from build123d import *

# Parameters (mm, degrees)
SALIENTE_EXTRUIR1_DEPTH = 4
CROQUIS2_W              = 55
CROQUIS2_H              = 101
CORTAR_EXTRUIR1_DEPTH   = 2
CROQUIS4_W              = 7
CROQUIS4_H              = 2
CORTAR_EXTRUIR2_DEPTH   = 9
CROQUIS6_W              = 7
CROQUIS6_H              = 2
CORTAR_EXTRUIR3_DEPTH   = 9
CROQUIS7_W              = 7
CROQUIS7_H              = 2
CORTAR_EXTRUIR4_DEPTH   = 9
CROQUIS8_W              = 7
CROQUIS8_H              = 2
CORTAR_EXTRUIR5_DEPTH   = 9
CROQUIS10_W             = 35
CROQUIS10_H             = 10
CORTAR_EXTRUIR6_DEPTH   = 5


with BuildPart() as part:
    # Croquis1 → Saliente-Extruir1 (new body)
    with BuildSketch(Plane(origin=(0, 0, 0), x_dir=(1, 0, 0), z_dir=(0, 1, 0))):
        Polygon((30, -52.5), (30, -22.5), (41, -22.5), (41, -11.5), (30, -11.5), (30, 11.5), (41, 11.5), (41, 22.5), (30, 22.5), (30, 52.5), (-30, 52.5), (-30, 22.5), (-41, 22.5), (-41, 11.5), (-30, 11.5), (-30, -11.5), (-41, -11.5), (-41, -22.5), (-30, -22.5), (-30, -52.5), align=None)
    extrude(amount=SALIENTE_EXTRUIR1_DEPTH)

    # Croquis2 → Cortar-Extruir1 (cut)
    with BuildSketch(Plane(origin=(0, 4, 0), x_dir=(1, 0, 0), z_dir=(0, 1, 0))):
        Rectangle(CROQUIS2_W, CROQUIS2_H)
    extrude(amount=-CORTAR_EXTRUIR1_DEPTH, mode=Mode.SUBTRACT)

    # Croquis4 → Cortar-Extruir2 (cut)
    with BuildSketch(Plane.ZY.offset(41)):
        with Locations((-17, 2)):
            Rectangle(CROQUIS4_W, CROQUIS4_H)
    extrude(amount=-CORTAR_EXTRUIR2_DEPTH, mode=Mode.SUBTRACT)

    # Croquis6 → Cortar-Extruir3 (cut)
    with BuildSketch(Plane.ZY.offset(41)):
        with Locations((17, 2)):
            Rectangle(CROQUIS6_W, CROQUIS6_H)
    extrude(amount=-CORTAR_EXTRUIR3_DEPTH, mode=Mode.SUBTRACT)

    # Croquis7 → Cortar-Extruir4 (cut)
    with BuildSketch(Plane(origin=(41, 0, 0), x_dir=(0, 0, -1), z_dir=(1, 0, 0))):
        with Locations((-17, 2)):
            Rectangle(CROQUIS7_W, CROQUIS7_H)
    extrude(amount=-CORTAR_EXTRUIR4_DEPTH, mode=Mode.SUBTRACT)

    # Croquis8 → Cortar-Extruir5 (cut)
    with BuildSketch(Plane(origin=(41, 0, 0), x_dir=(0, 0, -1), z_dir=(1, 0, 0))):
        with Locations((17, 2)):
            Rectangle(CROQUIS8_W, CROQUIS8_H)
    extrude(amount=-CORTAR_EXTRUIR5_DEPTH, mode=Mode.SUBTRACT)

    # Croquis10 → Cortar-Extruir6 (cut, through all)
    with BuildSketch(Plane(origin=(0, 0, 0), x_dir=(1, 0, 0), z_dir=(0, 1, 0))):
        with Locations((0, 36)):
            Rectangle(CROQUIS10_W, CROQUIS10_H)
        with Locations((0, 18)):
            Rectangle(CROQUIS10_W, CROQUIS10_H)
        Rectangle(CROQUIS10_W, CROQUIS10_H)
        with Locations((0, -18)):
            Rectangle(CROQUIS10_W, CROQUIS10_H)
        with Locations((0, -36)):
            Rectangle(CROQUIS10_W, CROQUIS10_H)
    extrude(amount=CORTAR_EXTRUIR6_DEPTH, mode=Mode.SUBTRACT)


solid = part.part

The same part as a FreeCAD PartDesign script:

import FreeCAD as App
import Part
import Sketcher
from FreeCAD import Vector


def add_polygon(sketch, points):
    """Adds a closed chain of lines whose ends are joined by coincident constraints."""
    first, n = sketch.GeometryCount, len(points)
    for a, b in zip(points, points[1:] + points[:1]):
        sketch.addGeometry(Part.LineSegment(App.Vector(*a, 0), App.Vector(*b, 0)), False)
    for i in range(n):
        sketch.addConstraint(Sketcher.Constraint("Coincident", first + i, 2, first + (i + 1) % n, 1))

doc = App.newDocument("Part")
body = doc.addObject("PartDesign::Body", "Body")

sketch1 = body.newObject("Sketcher::SketchObject", "Sketch")
sketch1.AttachmentSupport = (doc.getObject("XZ_Plane"), [""])
sketch1.MapMode = "FlatFace"
add_polygon(sketch1, [(30, 52), (30, 22), (41, 22), (41, 12), (30, 12), (30, -12), (41, -12), (41, -22), (30, -22), (30, -52), (-30, -52), (-30, -22), (-41, -22), (-41, -12), (-30, -12), (-30, 12), (-41, 12), (-41, 22), (-30, 22), (-30, 52)])
sketch1.addConstraint([
    Sketcher.Constraint("Vertical", 0),
    Sketcher.Constraint("Horizontal", 1),
    Sketcher.Constraint("Vertical", 2),
    Sketcher.Constraint("Horizontal", 3),
    Sketcher.Constraint("Vertical", 4),
    Sketcher.Constraint("Horizontal", 5),
    Sketcher.Constraint("Vertical", 6),
    Sketcher.Constraint("Horizontal", 7),
    Sketcher.Constraint("Vertical", 8),
    Sketcher.Constraint("Horizontal", 9),
    Sketcher.Constraint("Vertical", 10),
    Sketcher.Constraint("Horizontal", 11),
    Sketcher.Constraint("Vertical", 12),
    Sketcher.Constraint("Horizontal", 13),
    Sketcher.Constraint("Vertical", 14),
    Sketcher.Constraint("Horizontal", 15),
    Sketcher.Constraint("Vertical", 16),
    Sketcher.Constraint("Horizontal", 17),
    Sketcher.Constraint("Vertical", 18),
    Sketcher.Constraint("Horizontal", 19),
    Sketcher.Constraint("Symmetric", 0, 2, 10, 2, -1, 1),
    Sketcher.Constraint("Symmetric", 2, 2, 12, 2, -1, 1),
    Sketcher.Constraint("Symmetric", 4, 2, 14, 2, -1, 1),
    Sketcher.Constraint("Symmetric", 6, 2, 16, 2, -1, 1),
    Sketcher.Constraint("Symmetric", 8, 2, 18, 2, -1, 1),
    Sketcher.Constraint("Symmetric", 7, 2, 10, 2, -2),
    Sketcher.Constraint("Symmetric", 5, 2, 12, 2, -2),
    Sketcher.Constraint("Vertical", 0, 2, 3, 2),
    Sketcher.Constraint("Equal", 17, 2),
    Sketcher.Constraint("DistanceX", 1, 1, 1, 2, 11.0),
    Sketcher.Constraint("DistanceX", 9, 2, 9, 1, 60.0),
    Sketcher.Constraint("DistanceY", 0, 2, 0, 1, 30.0),
    Sketcher.Constraint("DistanceY", 4, 2, 4, 1, 23.0),
])
pad1 = body.newObject("PartDesign::Pad", "Pad")
pad1.Profile = sketch1
pad1.Length = 4
pad1.Reversed = True

sketch2 = body.newObject("Sketcher::SketchObject", "Sketch001")
sketch2.AttachmentSupport = (doc.getObject("XZ_Plane"), [""])
sketch2.MapMode = "FlatFace"
sketch2.AttachmentOffset = App.Placement(Vector(0, 0, -4), App.Rotation())
add_polygon(sketch2, [(-28, -50), (-28, 50), (28, 50), (28, -50)])
sketch2.addConstraint([
    Sketcher.Constraint("Vertical", 0),
    Sketcher.Constraint("Horizontal", 1),
    Sketcher.Constraint("Vertical", 2),
    Sketcher.Constraint("Horizontal", 3),
    Sketcher.Constraint("Symmetric", 0, 2, 2, 2, -1, 1),
    Sketcher.Constraint("DistanceX", 1, 1, 1, 2, 55.0),
    Sketcher.Constraint("DistanceY", 0, 1, 0, 2, 101.0),
])
pocket1 = body.newObject("PartDesign::Pocket", "Pocket")
pocket1.Profile = sketch2
pocket1.Length = 2
pocket1.Reversed = True

sketch3 = body.newObject("Sketcher::SketchObject", "Sketch002")
sketch3.AttachmentSupport = (doc.getObject("YZ_Plane"), [""])
sketch3.MapMode = "FlatFace"
sketch3.AttachmentOffset = App.Placement(Vector(0, 0, -41), App.Rotation())
add_polygon(sketch3, [(3, -20.5), (1, -20.5), (1, -13.5), (3, -13.5)])
sketch3.addConstraint([
    Sketcher.Constraint("Horizontal", 0),
    Sketcher.Constraint("Vertical", 1),
    Sketcher.Constraint("Horizontal", 2),
    Sketcher.Constraint("Vertical", 3),
    Sketcher.Constraint("DistanceX", 0, 2, 0, 1, 2.0),
    Sketcher.Constraint("DistanceY", 1, 1, 1, 2, 7.0),
    Sketcher.Constraint("DistanceX", -1, 1, 0, 2, 1.0),
    Sketcher.Constraint("DistanceY", 0, 2, -1, 1, 20.5),
])
pocket2 = body.newObject("PartDesign::Pocket", "Pocket001")
pocket2.Profile = sketch3
pocket2.Length = 9
pocket2.Reversed = True

sketch4 = body.newObject("Sketcher::SketchObject", "Sketch003")
sketch4.AttachmentSupport = (doc.getObject("YZ_Plane"), [""])
sketch4.MapMode = "FlatFace"
sketch4.AttachmentOffset = App.Placement(Vector(0, 0, -41), App.Rotation())
add_polygon(sketch4, [(3, 13.5), (1, 13.5), (1, 20.5), (3, 20.5)])
sketch4.addConstraint([
    Sketcher.Constraint("Horizontal", 0),
    Sketcher.Constraint("Vertical", 1),
    Sketcher.Constraint("Horizontal", 2),
    Sketcher.Constraint("Vertical", 3),
    Sketcher.Constraint("DistanceX", 0, 2, 0, 1, 2.0),
    Sketcher.Constraint("DistanceY", 1, 1, 1, 2, 7.0),
    Sketcher.Constraint("DistanceX", -1, 1, 0, 2, 1.0),
    Sketcher.Constraint("DistanceY", -1, 1, 0, 2, 13.5),
])
pocket3 = body.newObject("PartDesign::Pocket", "Pocket002")
pocket3.Profile = sketch4
pocket3.Length = 9
pocket3.Reversed = True

sketch5 = body.newObject("Sketcher::SketchObject", "Sketch004")
sketch5.AttachmentSupport = (doc.getObject("YZ_Plane"), [""])
sketch5.MapMode = "FlatFace"
sketch5.AttachmentOffset = App.Placement(Vector(0, 0, 41), App.Rotation())
add_polygon(sketch5, [(3, 20.5), (1, 20.5), (1, 13.5), (3, 13.5)])
sketch5.addConstraint([
    Sketcher.Constraint("Horizontal", 0),
    Sketcher.Constraint("Vertical", 1),
    Sketcher.Constraint("Horizontal", 2),
    Sketcher.Constraint("Vertical", 3),
    Sketcher.Constraint("DistanceX", 0, 2, 0, 1, 2.0),
    Sketcher.Constraint("DistanceY", 1, 2, 1, 1, 7.0),
    Sketcher.Constraint("DistanceX", -1, 1, 0, 2, 1.0),
    Sketcher.Constraint("DistanceY", -1, 1, 0, 2, 20.5),
])
pocket4 = body.newObject("PartDesign::Pocket", "Pocket003")
pocket4.Profile = sketch5
pocket4.Length = 9

sketch6 = body.newObject("Sketcher::SketchObject", "Sketch005")
sketch6.AttachmentSupport = (doc.getObject("YZ_Plane"), [""])
sketch6.MapMode = "FlatFace"
sketch6.AttachmentOffset = App.Placement(Vector(0, 0, 41), App.Rotation())
add_polygon(sketch6, [(3, -13.5), (1, -13.5), (1, -20.5), (3, -20.5)])
sketch6.addConstraint([
    Sketcher.Constraint("Horizontal", 0),
    Sketcher.Constraint("Vertical", 1),
    Sketcher.Constraint("Horizontal", 2),
    Sketcher.Constraint("Vertical", 3),
    Sketcher.Constraint("DistanceX", 0, 2, 0, 1, 2.0),
    Sketcher.Constraint("DistanceY", 1, 2, 1, 1, 7.0),
    Sketcher.Constraint("DistanceX", -1, 1, 0, 2, 1.0),
    Sketcher.Constraint("DistanceY", 0, 2, -1, 1, 13.5),
])
pocket5 = body.newObject("PartDesign::Pocket", "Pocket004")
pocket5.Profile = sketch6
pocket5.Length = 9

sketch7 = body.newObject("Sketcher::SketchObject", "Sketch006")
sketch7.AttachmentSupport = (doc.getObject("XZ_Plane"), [""])
sketch7.MapMode = "FlatFace"
add_polygon(sketch7, [(-18, -41), (-18, -31), (18, -31), (18, -41)])
add_polygon(sketch7, [(-18, -23), (-18, -13), (18, -13), (18, -23)])
add_polygon(sketch7, [(-18, -5), (-18, 5), (18, 5), (18, -5)])
add_polygon(sketch7, [(-18, 13), (-18, 23), (18, 23), (18, 13)])
add_polygon(sketch7, [(-18, 31), (-18, 41), (18, 41), (18, 31)])
sketch7.addConstraint([
    Sketcher.Constraint("Vertical", 0),
    Sketcher.Constraint("Horizontal", 1),
    Sketcher.Constraint("Vertical", 2),
    Sketcher.Constraint("Horizontal", 3),
    Sketcher.Constraint("Vertical", 4),
    Sketcher.Constraint("Horizontal", 5),
    Sketcher.Constraint("Vertical", 6),
    Sketcher.Constraint("Horizontal", 7),
    Sketcher.Constraint("Vertical", 8),
    Sketcher.Constraint("Horizontal", 9),
    Sketcher.Constraint("Vertical", 10),
    Sketcher.Constraint("Horizontal", 11),
    Sketcher.Constraint("Vertical", 12),
    Sketcher.Constraint("Horizontal", 13),
    Sketcher.Constraint("Vertical", 14),
    Sketcher.Constraint("Horizontal", 15),
    Sketcher.Constraint("Vertical", 16),
    Sketcher.Constraint("Horizontal", 17),
    Sketcher.Constraint("Vertical", 18),
    Sketcher.Constraint("Horizontal", 19),
    Sketcher.Constraint("Symmetric", 8, 2, 10, 2, -1, 1),
    Sketcher.Constraint("Symmetric", 6, 2, 12, 2, -1, 1),
    Sketcher.Constraint("Symmetric", 4, 2, 14, 2, -1, 1),
    Sketcher.Constraint("Symmetric", 2, 2, 16, 2, -1, 1),
    Sketcher.Constraint("Symmetric", 0, 2, 18, 2, -1, 1),
    Sketcher.Constraint("Vertical", 3, 2, 4, 2),
    Sketcher.Constraint("Vertical", 2, 2, 5, 2),
    Sketcher.Constraint("Vertical", 7, 2, 8, 2),
    Sketcher.Constraint("Vertical", 6, 2, 9, 2),
    Sketcher.Constraint("Equal", 2, 4),
    Sketcher.Constraint("Equal", 6, 8),
    Sketcher.Constraint("DistanceX", 1, 1, 1, 2, 35.0),
    Sketcher.Constraint("DistanceY", 0, 1, 0, 2, 10.0),
    Sketcher.Constraint("DistanceY", 0, 2, -1, 1, 31.0),
    Sketcher.Constraint("DistanceY", 4, 2, -1, 1, 13.0),
])
pocket6 = body.newObject("PartDesign::Pocket", "Pocket005")
pocket6.Profile = sketch7
pocket6.Type = "ThroughAll"

doc.recompute()
